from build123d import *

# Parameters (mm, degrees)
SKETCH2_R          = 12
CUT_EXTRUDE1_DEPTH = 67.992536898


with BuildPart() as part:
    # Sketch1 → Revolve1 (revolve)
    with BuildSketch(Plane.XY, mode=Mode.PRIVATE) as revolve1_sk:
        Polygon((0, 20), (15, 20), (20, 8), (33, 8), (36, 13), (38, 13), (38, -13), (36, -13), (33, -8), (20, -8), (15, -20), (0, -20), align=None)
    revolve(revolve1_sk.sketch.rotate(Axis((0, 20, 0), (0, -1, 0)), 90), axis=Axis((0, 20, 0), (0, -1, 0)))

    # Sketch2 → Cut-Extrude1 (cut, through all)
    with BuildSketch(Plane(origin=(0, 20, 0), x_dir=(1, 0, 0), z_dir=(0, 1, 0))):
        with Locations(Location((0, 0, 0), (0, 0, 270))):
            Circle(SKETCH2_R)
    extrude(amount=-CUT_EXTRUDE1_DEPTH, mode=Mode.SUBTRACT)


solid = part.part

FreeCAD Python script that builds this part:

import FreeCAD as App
import Part
import Sketcher
Q = App.Units.Quantity

doc = App.newDocument("Part")
params = doc.addObject("Spreadsheet::Sheet", "Params")
for row, (alias, value) in enumerate([
    ("sketch1_width", "15 mm"),
    ("sketch1_width2", "13 mm"),
    ("sketch1_width3", "2 mm"),
    ("sketch1_height", "40 mm"),
    ("sketch1_height2", "26 mm"),
    ("revolution_angle", "360 deg"),
    ("sketch2_diameter", "24 mm"),
], start=1):
    params.set(f"A{row}", alias)
    params.set(f"B{row}", "=" + value)
    params.setAlias(f"B{row}", alias)

body = doc.addObject("PartDesign::Body", "Body")

sketch1 = doc.addObject("Sketcher::SketchObject", "Sketch")
body.addObject(sketch1)
sketch1.AttachmentSupport = (doc.XY_Plane, [""])
sketch1.MapMode = "FlatFace"
sketch1.addGeometry([
    Part.LineSegment(App.Vector(15, 20, 0), App.Vector(0, 20, 0)),
    Part.LineSegment(App.Vector(0, 20, 0), App.Vector(0, -20, 0)),
    Part.LineSegment(App.Vector(0, -20, 0), App.Vector(15, -20, 0)),
    Part.LineSegment(App.Vector(15, -20, 0), App.Vector(20, -8, 0)),
    Part.LineSegment(App.Vector(20, -8, 0), App.Vector(33, -8, 0)),
    Part.LineSegment(App.Vector(33, -8, 0), App.Vector(36, -13, 0)),
    Part.LineSegment(App.Vector(36, -13, 0), App.Vector(38, -13, 0)),
    Part.LineSegment(App.Vector(38, -13, 0), App.Vector(38, 13, 0)),
    Part.LineSegment(App.Vector(38, 13, 0), App.Vector(36, 13, 0)),
    Part.LineSegment(App.Vector(36, 13, 0), App.Vector(33, 8, 0)),
    Part.LineSegment(App.Vector(33, 8, 0), App.Vector(20, 8, 0)),
    Part.LineSegment(App.Vector(20, 8, 0), App.Vector(15, 20, 0)),
], False)
sketch1.addConstraint([
    Sketcher.Constraint("Coincident", 0, 2, 1, 1),
    Sketcher.Constraint("Coincident", 1, 2, 2, 1),
    Sketcher.Constraint("Coincident", 2, 2, 3, 1),
    Sketcher.Constraint("Coincident", 3, 2, 4, 1),
    Sketcher.Constraint("Coincident", 4, 2, 5, 1),
    Sketcher.Constraint("Coincident", 5, 2, 6, 1),
    Sketcher.Constraint("Coincident", 6, 2, 7, 1),
    Sketcher.Constraint("Coincident", 7, 2, 8, 1),
    Sketcher.Constraint("Coincident", 8, 2, 9, 1),
    Sketcher.Constraint("Coincident", 9, 2, 10, 1),
    Sketcher.Constraint("Coincident", 10, 2, 11, 1),
    Sketcher.Constraint("Coincident", 11, 2, 0, 1),
    Sketcher.Constraint("Horizontal", 0),
    Sketcher.Constraint("Vertical", 1),
    Sketcher.Constraint("Horizontal", 2),
    Sketcher.Constraint("Horizontal", 4),
    Sketcher.Constraint("Horizontal", 6),
    Sketcher.Constraint("Vertical", 7),
    Sketcher.Constraint("Horizontal", 8),
    Sketcher.Constraint("Horizontal", 10),
    Sketcher.Constraint("Symmetric", 0, 2, 1, 2, -1, 1),
    Sketcher.Constraint("Symmetric", 5, 2, 8, 2, -1),
    Sketcher.Constraint("Symmetric", 4, 2, 9, 2, -1),
    Sketcher.Constraint("Vertical", 3, 2, 10, 2),
    Sketcher.Constraint("Vertical", 2, 2, 11, 2),
    Sketcher.Constraint("DistanceX", 0, 2, 0, 1, Q("15 mm")),
    Sketcher.Constraint("DistanceX", 4, 1, 4, 2, Q("13 mm")),
    Sketcher.Constraint("DistanceX", 6, 1, 6, 2, Q("2 mm")),
    Sketcher.Constraint("DistanceY", 1, 2, 1, 1, Q("40 mm")),
    Sketcher.Constraint("DistanceY", 7, 1, 7, 2, Q("26 mm")),
    Sketcher.Constraint("Distance", 3, Q("13 mm")),
    Sketcher.Constraint("DistanceX", -1, 1, 3, 2, Q("20 mm")),
    Sketcher.Constraint("DistanceX", -1, 1, 5, 2, Q("36 mm")),
])
sketch1.setExpression("Constraints[25]", "Params.sketch1_width")
sketch1.setExpression("Constraints[26]", "Params.sketch1_width2")
sketch1.setExpression("Constraints[27]", "Params.sketch1_width3")
sketch1.setExpression("Constraints[28]", "Params.sketch1_height")
sketch1.setExpression("Constraints[29]", "Params.sketch1_height2")
revolution = doc.addObject("PartDesign::Revolution", "Revolution")
body.addObject(revolution)
revolution.Profile = sketch1
revolution.ReferenceAxis = (sketch1, ["V_Axis"])
revolution.setExpression("Angle", "Params.revolution_angle")

sketch2 = doc.addObject("Sketcher::SketchObject", "Sketch001")
body.addObject(sketch2)
sketch2.AttachmentSupport = (doc.XZ_Plane, [""])
sketch2.MapMode = "FlatFace"
sketch2.AttachmentOffset = App.Placement(App.Vector(0, 0, -20), App.Rotation())
sketch2.addGeometry(Part.Circle(App.Vector(0, 0, 0), App.Vector(0, 0, 1), 12), False)
sketch2.addConstraint([
    Sketcher.Constraint("Coincident", 0, 3, -1, 1),
    Sketcher.Constraint("Diameter", 0, Q("24 mm")),
])
sketch2.setExpression("Constraints[1]", "Params.sketch2_diameter")
pocket1 = doc.addObject("PartDesign::Pocket", "Pocket")
body.addObject(pocket1)
pocket1.Profile = sketch2
pocket1.Type = "ThroughAll"
pocket1.Reversed = True

doc.recompute()
